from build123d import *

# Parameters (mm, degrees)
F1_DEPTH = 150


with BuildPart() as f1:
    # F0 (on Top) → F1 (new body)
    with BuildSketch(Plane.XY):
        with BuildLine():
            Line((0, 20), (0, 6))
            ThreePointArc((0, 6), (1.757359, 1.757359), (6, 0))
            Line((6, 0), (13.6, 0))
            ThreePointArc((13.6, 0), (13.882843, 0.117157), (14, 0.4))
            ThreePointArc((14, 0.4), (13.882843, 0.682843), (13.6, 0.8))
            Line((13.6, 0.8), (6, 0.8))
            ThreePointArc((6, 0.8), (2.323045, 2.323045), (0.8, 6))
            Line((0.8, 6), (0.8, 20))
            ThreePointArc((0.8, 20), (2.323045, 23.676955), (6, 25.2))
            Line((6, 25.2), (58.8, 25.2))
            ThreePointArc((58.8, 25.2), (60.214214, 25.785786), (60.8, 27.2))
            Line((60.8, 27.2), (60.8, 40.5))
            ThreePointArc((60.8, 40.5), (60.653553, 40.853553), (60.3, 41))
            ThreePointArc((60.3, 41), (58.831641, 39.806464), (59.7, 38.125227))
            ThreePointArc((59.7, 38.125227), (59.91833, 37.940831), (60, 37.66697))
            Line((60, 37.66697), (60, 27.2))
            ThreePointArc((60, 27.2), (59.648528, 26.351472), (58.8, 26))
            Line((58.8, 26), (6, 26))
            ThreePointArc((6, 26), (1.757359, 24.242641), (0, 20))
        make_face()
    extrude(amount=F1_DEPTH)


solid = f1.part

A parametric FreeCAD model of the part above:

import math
import FreeCAD as App
import Part
import Sketcher
from FreeCAD import Vector

doc = App.newDocument("Part")
body = doc.addObject("PartDesign::Body", "Body")

# Sketch on XY plane
sketch1 = doc.addObject("Sketcher::SketchObject", "Sketch")
body.addObject(sketch1)
sketch1.AttachmentSupport = (doc.XY_Plane, [""])
sketch1.MapMode = "FlatFace"
sketch1.addGeometry([
    Part.LineSegment(Vector(0, 20, 0), Vector(0, 6, 0)),  # 0
    Part.ArcOfCircle(Part.Circle(Vector(6, 6, 0), Vector(0, 0, 1), 6), math.radians(180), math.radians(270)),  # 1
    Part.LineSegment(Vector(6, 0, 0), Vector(13.6, 0, 0)),  # 2
    Part.ArcOfCircle(Part.Circle(Vector(13.6, 0.4, 0), Vector(0, 0, 1), 0.4), math.radians(-90), math.radians(0)),  # 3
    Part.ArcOfCircle(Part.Circle(Vector(13.6, 0.4, 0), Vector(0, 0, 1), 0.4), math.radians(0), math.radians(90)),  # 4
    Part.LineSegment(Vector(13.6, 0.8, 0), Vector(6, 0.8, 0)),  # 5
    Part.ArcOfCircle(Part.Circle(Vector(6, 6, 0), Vector(0, 0, 1), 5.2), math.radians(-180), math.radians(-90)),  # 6
    Part.LineSegment(Vector(0.8, 6, 0), Vector(0.8, 20, 0)),  # 7
    Part.ArcOfCircle(Part.Circle(Vector(6, 20, 0), Vector(0, 0, 1), 5.2), math.radians(90), math.radians(180)),  # 8
    Part.LineSegment(Vector(6, 25.2, 0), Vector(58.8, 25.2, 0)),  # 9
    Part.ArcOfCircle(Part.Circle(Vector(58.8, 27.2, 0), Vector(0, 0, 1), 2), math.radians(-90), math.radians(0)),  # 10
    Part.LineSegment(Vector(60.8, 27.2, 0), Vector(60.8, 40.5, 0)),  # 11
    Part.ArcOfCircle(Part.Circle(Vector(60.3, 40.5, 0), Vector(0, 0, 1), 0.5), math.radians(0), math.radians(90)),  # 12
    Part.ArcOfCircle(Part.Circle(Vector(60.3, 39.5, 0), Vector(0, 0, 1), 1.5), math.radians(90), math.radians(246)),  # 13
    Part.ArcOfCircle(Part.Circle(Vector(59.5, 37.67, 0), Vector(0, 0, 1), 0.5), math.radians(0), math.radians(66)),  # 14
    Part.LineSegment(Vector(60, 37.67, 0), Vector(60, 27.2, 0)),  # 15
    Part.ArcOfCircle(Part.Circle(Vector(58.8, 27.2, 0), Vector(0, 0, 1), 1.2), math.radians(-90), math.radians(0)),  # 16
    Part.LineSegment(Vector(58.8, 26, 0), Vector(6, 26, 0)),  # 17
    Part.ArcOfCircle(Part.Circle(Vector(6, 20, 0), Vector(0, 0, 1), 6), math.radians(90), math.radians(180)),  # 18
], False)
sketch1.addConstraint([
    Sketcher.Constraint("Tangent", 0, 2, 1, 1),
    Sketcher.Constraint("Tangent", 1, 2, 2, 1),
    Sketcher.Constraint("Coincident", 2, 2, 3, 1),
    Sketcher.Constraint("Coincident", 3, 2, 4, 1),
    Sketcher.Constraint("Coincident", 4, 2, 5, 1),
    Sketcher.Constraint("Tangent", 5, 2, 6, 2),
    Sketcher.Constraint("Tangent", 6, 1, 7, 1),
    Sketcher.Constraint("Tangent", 7, 2, 8, 2),
    Sketcher.Constraint("Tangent", 8, 1, 9, 1),
    Sketcher.Constraint("Tangent", 9, 2, 10, 1),
    Sketcher.Constraint("Tangent", 10, 2, 11, 1),
    Sketcher.Constraint("Coincident", 11, 2, 12, 1),
    Sketcher.Constraint("Coincident", 12, 2, 13, 1),
    Sketcher.Constraint("Tangent", 13, 2, 14, 2),
    Sketcher.Constraint("Tangent", 14, 1, 15, 1),
    Sketcher.Constraint("Tangent", 15, 2, 16, 2),
    Sketcher.Constraint("Tangent", 16, 1, 17, 1),
    Sketcher.Constraint("Tangent", 17, 2, 18, 1),
    Sketcher.Constraint("Tangent", 18, 2, 0, 1),
    Sketcher.Constraint("Vertical", 0),
    Sketcher.Constraint("Horizontal", 2),
    Sketcher.Constraint("Horizontal", 5),
    Sketcher.Constraint("Vertical", 7),
    Sketcher.Constraint("Horizontal", 9),
    Sketcher.Constraint("Vertical", 11),
    Sketcher.Constraint("Vertical", 15),
    Sketcher.Constraint("Horizontal", 17),
    Sketcher.Constraint("Coincident", 4, 3, 3, 3),
    Sketcher.Constraint("Coincident", 6, 3, 1, 3),
    Sketcher.Constraint("Coincident", 16, 3, 10, 3),
    Sketcher.Constraint("Coincident", 18, 3, 8, 3),
    Sketcher.Constraint("Equal", 6, 8),
    Sketcher.Constraint("PointOnObject", 0, 2, -2),
    Sketcher.Constraint("PointOnObject", 1, 2, -1),
    Sketcher.Constraint("Horizontal", 4, 3, 3, 2),
    Sketcher.Constraint("Horizontal", 12, 3, 11, 2),
    Sketcher.Constraint("Vertical", 4, 3, 2, 2),
    Sketcher.Constraint("Vertical", 2, 2, 4, 2),
    Sketcher.Constraint("Vertical", 13, 3, 12, 2),
    Sketcher.Constraint("Radius", 1, 5.999999),
    Sketcher.Constraint("Radius", 10, 1.999999),
    Sketcher.Constraint("Radius", 3, 0.399999),
    Sketcher.Constraint("Radius", 12, 0.500001),
    Sketcher.Constraint("Radius", 13, 1.5),
    Sketcher.Constraint("Radius", 14, 0.499999),
    Sketcher.Constraint("DistanceY", 0, 2, 0, 1, 14.0),
    Sketcher.Constraint("DistanceX", 2, 1, 2, 2, 7.6),
    Sketcher.Constraint("DistanceX", 9, 1, 9, 2, 52.8),
    Sketcher.Constraint("DistanceY", 11, 1, 11, 2, 13.3),
    Sketcher.Constraint("DistanceX", -1, 1, 13, 3, 60.300001),
])
pad1 = doc.addObject("PartDesign::Pad", "Pad")
body.addObject(pad1)
pad1.Profile = sketch1
pad1.Length = 150

doc.recompute()
